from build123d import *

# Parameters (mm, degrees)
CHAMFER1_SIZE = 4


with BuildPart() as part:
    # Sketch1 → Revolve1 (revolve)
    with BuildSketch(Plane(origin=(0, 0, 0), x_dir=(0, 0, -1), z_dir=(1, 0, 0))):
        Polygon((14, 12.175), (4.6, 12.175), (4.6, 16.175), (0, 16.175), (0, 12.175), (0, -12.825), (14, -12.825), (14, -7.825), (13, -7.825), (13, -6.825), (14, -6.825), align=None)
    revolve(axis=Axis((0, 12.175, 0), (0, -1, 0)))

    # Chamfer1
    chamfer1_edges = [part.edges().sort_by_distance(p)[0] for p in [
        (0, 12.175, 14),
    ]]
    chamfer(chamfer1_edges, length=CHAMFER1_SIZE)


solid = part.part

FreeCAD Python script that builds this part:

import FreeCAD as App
import Part
import Sketcher

V = App.Vector


def edges_at(feature, points):
    """Names of the edges that pass closest to the given points."""
    edges = feature.Shape.Edges
    near = lambda p: min(range(len(edges)), key=lambda i: edges[i].distToShape(Part.Vertex(*p))[0])
    return sorted({f"Edge{near(p) + 1}" for p in points})

doc = App.newDocument("Part")
params = doc.addObject("Spreadsheet::Sheet", "Params")
for row, (alias, value) in enumerate([
    ("sketch1_width", "4 mm"),
    ("sketch1_width2", "29 mm"),
    ("sketch1_width3", "5 mm"),
    ("sketch1_width4", "1 mm"),
    ("sketch1_height", "14 mm"),
    ("revolution_angle", "360 deg"),
    ("chamfer_size", "4 mm"),
], start=1):
    params.set(f"A{row}", alias)
    params.set(f"B{row}", "=" + value)
    params.setAlias(f"B{row}", alias)

body = doc.addObject("PartDesign::Body", "Body")

# Sketch on YZ plane
sketch1 = body.newObject("Sketcher::SketchObject", "Sketch")
sketch1.AttachmentSupport = (doc.getObject("YZ_Plane"), [""])
sketch1.MapMode = "FlatFace"
sketch1.addGeometry([
    Part.LineSegment(V(12.175, -14, 0), V(12.175, -4.6, 0)),  # 0
    Part.LineSegment(V(12.175, -4.6, 0), V(16.175, -4.6, 0)),  # 1
    Part.LineSegment(V(16.175, -4.6, 0), V(16.175, 0, 0)),  # 2
    Part.LineSegment(V(16.175, 0, 0), V(-12.825, 0, 0)),  # 3
    Part.LineSegment(V(-12.825, 0, 0), V(-12.825, -14, 0)),  # 4
    Part.LineSegment(V(-12.825, -14, 0), V(-7.825, -14, 0)),  # 5
    Part.LineSegment(V(-7.825, -14, 0), V(-7.825, -13, 0)),  # 6
    Part.LineSegment(V(-7.825, -13, 0), V(-6.825, -13, 0)),  # 7
    Part.LineSegment(V(-6.825, -13, 0), V(-6.825, -14, 0)),  # 8
    Part.LineSegment(V(-6.825, -14, 0), V(12.175, -14, 0)),  # 9
], False)
sketch1.addConstraint([
    Sketcher.Constraint("Coincident", 0, 2, 1, 1),
    Sketcher.Constraint("Coincident", 1, 2, 2, 1),
    Sketcher.Constraint("Coincident", 2, 2, 3, 1),
    Sketcher.Constraint("Coincident", 3, 2, 4, 1),
    Sketcher.Constraint("Coincident", 4, 2, 5, 1),
    Sketcher.Constraint("Coincident", 5, 2, 6, 1),
    Sketcher.Constraint("Coincident", 6, 2, 7, 1),
    Sketcher.Constraint("Coincident", 7, 2, 8, 1),
    Sketcher.Constraint("Coincident", 8, 2, 9, 1),
    Sketcher.Constraint("Coincident", 9, 2, 0, 1),
    Sketcher.Constraint("Vertical", 0),
    Sketcher.Constraint("Horizontal", 1),
    Sketcher.Constraint("Vertical", 2),
    Sketcher.Constraint("Horizontal", 3),
    Sketcher.Constraint("Vertical", 4),
    Sketcher.Constraint("Horizontal", 5),
    Sketcher.Constraint("Vertical", 6),
    Sketcher.Constraint("Horizontal", 7),
    Sketcher.Constraint("Vertical", 8),
    Sketcher.Constraint("Horizontal", 9),
    Sketcher.Constraint("PointOnObject", 2, 2, -1),
    Sketcher.Constraint("Horizontal", 5, 2, 8, 2),
    Sketcher.Constraint("Equal", 7, 6),
    Sketcher.Constraint("DistanceX", 1, 1, 1, 2, 4.0),
    Sketcher.Constraint("DistanceX", 3, 2, 3, 1, 29.0),
    Sketcher.Constraint("DistanceX", 5, 1, 5, 2, 5.0),
    Sketcher.Constraint("DistanceX", 7, 1, 7, 2, 1.0),
    Sketcher.Constraint("DistanceY", 4, 2, 4, 1, 14.0),
    Sketcher.Constraint("DistanceY", 0, 1, 0, 2, 9.4),
    Sketcher.Constraint("DistanceX", -1, 1, 0, 2, 12.175),
])
sketch1.setExpression("Constraints[23]", "Params.sketch1_width")
sketch1.setExpression("Constraints[24]", "Params.sketch1_width2")
sketch1.setExpression("Constraints[25]", "Params.sketch1_width3")
sketch1.setExpression("Constraints[26]", "Params.sketch1_width4")
sketch1.setExpression("Constraints[27]", "Params.sketch1_height")
revolution = body.newObject("PartDesign::Revolution", "Revolution")
revolution.Profile = sketch1
revolution.ReferenceAxis = (sketch1, ["H_Axis"])
revolution.setExpression("Angle", "Params.revolution_angle")
doc.recompute()

chamfer = body.newObject("PartDesign::Chamfer", "Chamfer")
chamfer.Base = (revolution, edges_at(revolution, [(0, 12.175, 14)]))
chamfer.setExpression("Size", "Params.chamfer_size")

doc.recompute()
